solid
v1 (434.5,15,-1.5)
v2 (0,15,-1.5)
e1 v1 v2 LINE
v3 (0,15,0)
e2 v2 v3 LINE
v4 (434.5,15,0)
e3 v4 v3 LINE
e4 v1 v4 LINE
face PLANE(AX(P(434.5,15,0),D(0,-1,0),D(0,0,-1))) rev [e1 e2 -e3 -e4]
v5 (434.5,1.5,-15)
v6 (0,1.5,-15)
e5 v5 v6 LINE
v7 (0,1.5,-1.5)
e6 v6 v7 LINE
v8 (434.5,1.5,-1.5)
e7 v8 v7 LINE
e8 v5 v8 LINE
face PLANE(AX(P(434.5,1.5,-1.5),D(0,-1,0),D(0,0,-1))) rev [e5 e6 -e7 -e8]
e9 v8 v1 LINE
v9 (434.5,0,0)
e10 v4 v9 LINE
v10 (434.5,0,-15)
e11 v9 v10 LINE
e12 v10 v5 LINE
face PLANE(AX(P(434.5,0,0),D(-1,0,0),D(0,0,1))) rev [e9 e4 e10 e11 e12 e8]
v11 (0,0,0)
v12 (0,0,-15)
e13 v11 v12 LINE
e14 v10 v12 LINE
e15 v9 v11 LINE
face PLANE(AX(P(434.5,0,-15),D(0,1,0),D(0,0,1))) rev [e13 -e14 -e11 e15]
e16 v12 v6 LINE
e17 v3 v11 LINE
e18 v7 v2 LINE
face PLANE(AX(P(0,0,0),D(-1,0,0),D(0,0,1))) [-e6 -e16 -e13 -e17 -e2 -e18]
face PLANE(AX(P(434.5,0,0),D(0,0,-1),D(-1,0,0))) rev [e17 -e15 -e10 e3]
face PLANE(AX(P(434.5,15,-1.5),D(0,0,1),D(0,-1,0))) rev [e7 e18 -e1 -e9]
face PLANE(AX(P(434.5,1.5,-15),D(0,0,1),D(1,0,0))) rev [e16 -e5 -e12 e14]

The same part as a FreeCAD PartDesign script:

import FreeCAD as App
import Part
import Sketcher
from FreeCAD import Vector

doc = App.newDocument("Part")
body = doc.addObject("PartDesign::Body", "Body")

sketch1 = body.newObject("Sketcher::SketchObject", "Sketch")
sketch1.AttachmentSupport = (doc.getObject("YZ_Plane"), [""])
sketch1.MapMode = "FlatFace"
sketch1.addGeometry(Part.LineSegment(Vector(15, 0, 0), Vector(0, 0, 0)), False)
sketch1.addGeometry(Part.LineSegment(Vector(0, 0, 0), Vector(0, -15, 0)), False)
sketch1.addGeometry(Part.LineSegment(Vector(0, -15, 0), Vector(1.5, -15, 0)), False)
sketch1.addGeometry(Part.LineSegment(Vector(1.5, -15, 0), Vector(1.5, -1.5, 0)), False)
sketch1.addGeometry(Part.LineSegment(Vector(1.5, -1.5, 0), Vector(15, -1.5, 0)), False)
sketch1.addGeometry(Part.LineSegment(Vector(15, -1.5, 0), Vector(15, 0, 0)), False)
sketch1.addConstraint(Sketcher.Constraint("Coincident", 0, 2, 1, 1))
sketch1.addConstraint(Sketcher.Constraint("Coincident", 1, 2, 2, 1))
sketch1.addConstraint(Sketcher.Constraint("Coincident", 2, 2, 3, 1))
sketch1.addConstraint(Sketcher.Constraint("Coincident", 3, 2, 4, 1))
sketch1.addConstraint(Sketcher.Constraint("Coincident", 4, 2, 5, 1))
sketch1.addConstraint(Sketcher.Constraint("Coincident", 5, 2, 0, 1))
sketch1.addConstraint(Sketcher.Constraint("Horizontal", 0))
sketch1.addConstraint(Sketcher.Constraint("Vertical", 1))
sketch1.addConstraint(Sketcher.Constraint("Horizontal", 2))
sketch1.addConstraint(Sketcher.Constraint("Vertical", 3))
sketch1.addConstraint(Sketcher.Constraint("Horizontal", 4))
sketch1.addConstraint(Sketcher.Constraint("Vertical", 5))
sketch1.addConstraint(Sketcher.Constraint("Coincident", 0, 2, -1, 1))
sketch1.addConstraint(Sketcher.Constraint("Equal", 0, 1))
sketch1.addConstraint(Sketcher.Constraint("Equal", 4, 3))
sketch1.addConstraint(Sketcher.Constraint("DistanceX", 0, 2, 0, 1, 15.0))
sketch1.addConstraint(Sketcher.Constraint("DistanceX", 2, 1, 2, 2, 1.5))
pad1 = body.newObject("PartDesign::Pad", "Pad")
pad1.Profile = sketch1
pad1.Length = 434.5

doc.recompute()
